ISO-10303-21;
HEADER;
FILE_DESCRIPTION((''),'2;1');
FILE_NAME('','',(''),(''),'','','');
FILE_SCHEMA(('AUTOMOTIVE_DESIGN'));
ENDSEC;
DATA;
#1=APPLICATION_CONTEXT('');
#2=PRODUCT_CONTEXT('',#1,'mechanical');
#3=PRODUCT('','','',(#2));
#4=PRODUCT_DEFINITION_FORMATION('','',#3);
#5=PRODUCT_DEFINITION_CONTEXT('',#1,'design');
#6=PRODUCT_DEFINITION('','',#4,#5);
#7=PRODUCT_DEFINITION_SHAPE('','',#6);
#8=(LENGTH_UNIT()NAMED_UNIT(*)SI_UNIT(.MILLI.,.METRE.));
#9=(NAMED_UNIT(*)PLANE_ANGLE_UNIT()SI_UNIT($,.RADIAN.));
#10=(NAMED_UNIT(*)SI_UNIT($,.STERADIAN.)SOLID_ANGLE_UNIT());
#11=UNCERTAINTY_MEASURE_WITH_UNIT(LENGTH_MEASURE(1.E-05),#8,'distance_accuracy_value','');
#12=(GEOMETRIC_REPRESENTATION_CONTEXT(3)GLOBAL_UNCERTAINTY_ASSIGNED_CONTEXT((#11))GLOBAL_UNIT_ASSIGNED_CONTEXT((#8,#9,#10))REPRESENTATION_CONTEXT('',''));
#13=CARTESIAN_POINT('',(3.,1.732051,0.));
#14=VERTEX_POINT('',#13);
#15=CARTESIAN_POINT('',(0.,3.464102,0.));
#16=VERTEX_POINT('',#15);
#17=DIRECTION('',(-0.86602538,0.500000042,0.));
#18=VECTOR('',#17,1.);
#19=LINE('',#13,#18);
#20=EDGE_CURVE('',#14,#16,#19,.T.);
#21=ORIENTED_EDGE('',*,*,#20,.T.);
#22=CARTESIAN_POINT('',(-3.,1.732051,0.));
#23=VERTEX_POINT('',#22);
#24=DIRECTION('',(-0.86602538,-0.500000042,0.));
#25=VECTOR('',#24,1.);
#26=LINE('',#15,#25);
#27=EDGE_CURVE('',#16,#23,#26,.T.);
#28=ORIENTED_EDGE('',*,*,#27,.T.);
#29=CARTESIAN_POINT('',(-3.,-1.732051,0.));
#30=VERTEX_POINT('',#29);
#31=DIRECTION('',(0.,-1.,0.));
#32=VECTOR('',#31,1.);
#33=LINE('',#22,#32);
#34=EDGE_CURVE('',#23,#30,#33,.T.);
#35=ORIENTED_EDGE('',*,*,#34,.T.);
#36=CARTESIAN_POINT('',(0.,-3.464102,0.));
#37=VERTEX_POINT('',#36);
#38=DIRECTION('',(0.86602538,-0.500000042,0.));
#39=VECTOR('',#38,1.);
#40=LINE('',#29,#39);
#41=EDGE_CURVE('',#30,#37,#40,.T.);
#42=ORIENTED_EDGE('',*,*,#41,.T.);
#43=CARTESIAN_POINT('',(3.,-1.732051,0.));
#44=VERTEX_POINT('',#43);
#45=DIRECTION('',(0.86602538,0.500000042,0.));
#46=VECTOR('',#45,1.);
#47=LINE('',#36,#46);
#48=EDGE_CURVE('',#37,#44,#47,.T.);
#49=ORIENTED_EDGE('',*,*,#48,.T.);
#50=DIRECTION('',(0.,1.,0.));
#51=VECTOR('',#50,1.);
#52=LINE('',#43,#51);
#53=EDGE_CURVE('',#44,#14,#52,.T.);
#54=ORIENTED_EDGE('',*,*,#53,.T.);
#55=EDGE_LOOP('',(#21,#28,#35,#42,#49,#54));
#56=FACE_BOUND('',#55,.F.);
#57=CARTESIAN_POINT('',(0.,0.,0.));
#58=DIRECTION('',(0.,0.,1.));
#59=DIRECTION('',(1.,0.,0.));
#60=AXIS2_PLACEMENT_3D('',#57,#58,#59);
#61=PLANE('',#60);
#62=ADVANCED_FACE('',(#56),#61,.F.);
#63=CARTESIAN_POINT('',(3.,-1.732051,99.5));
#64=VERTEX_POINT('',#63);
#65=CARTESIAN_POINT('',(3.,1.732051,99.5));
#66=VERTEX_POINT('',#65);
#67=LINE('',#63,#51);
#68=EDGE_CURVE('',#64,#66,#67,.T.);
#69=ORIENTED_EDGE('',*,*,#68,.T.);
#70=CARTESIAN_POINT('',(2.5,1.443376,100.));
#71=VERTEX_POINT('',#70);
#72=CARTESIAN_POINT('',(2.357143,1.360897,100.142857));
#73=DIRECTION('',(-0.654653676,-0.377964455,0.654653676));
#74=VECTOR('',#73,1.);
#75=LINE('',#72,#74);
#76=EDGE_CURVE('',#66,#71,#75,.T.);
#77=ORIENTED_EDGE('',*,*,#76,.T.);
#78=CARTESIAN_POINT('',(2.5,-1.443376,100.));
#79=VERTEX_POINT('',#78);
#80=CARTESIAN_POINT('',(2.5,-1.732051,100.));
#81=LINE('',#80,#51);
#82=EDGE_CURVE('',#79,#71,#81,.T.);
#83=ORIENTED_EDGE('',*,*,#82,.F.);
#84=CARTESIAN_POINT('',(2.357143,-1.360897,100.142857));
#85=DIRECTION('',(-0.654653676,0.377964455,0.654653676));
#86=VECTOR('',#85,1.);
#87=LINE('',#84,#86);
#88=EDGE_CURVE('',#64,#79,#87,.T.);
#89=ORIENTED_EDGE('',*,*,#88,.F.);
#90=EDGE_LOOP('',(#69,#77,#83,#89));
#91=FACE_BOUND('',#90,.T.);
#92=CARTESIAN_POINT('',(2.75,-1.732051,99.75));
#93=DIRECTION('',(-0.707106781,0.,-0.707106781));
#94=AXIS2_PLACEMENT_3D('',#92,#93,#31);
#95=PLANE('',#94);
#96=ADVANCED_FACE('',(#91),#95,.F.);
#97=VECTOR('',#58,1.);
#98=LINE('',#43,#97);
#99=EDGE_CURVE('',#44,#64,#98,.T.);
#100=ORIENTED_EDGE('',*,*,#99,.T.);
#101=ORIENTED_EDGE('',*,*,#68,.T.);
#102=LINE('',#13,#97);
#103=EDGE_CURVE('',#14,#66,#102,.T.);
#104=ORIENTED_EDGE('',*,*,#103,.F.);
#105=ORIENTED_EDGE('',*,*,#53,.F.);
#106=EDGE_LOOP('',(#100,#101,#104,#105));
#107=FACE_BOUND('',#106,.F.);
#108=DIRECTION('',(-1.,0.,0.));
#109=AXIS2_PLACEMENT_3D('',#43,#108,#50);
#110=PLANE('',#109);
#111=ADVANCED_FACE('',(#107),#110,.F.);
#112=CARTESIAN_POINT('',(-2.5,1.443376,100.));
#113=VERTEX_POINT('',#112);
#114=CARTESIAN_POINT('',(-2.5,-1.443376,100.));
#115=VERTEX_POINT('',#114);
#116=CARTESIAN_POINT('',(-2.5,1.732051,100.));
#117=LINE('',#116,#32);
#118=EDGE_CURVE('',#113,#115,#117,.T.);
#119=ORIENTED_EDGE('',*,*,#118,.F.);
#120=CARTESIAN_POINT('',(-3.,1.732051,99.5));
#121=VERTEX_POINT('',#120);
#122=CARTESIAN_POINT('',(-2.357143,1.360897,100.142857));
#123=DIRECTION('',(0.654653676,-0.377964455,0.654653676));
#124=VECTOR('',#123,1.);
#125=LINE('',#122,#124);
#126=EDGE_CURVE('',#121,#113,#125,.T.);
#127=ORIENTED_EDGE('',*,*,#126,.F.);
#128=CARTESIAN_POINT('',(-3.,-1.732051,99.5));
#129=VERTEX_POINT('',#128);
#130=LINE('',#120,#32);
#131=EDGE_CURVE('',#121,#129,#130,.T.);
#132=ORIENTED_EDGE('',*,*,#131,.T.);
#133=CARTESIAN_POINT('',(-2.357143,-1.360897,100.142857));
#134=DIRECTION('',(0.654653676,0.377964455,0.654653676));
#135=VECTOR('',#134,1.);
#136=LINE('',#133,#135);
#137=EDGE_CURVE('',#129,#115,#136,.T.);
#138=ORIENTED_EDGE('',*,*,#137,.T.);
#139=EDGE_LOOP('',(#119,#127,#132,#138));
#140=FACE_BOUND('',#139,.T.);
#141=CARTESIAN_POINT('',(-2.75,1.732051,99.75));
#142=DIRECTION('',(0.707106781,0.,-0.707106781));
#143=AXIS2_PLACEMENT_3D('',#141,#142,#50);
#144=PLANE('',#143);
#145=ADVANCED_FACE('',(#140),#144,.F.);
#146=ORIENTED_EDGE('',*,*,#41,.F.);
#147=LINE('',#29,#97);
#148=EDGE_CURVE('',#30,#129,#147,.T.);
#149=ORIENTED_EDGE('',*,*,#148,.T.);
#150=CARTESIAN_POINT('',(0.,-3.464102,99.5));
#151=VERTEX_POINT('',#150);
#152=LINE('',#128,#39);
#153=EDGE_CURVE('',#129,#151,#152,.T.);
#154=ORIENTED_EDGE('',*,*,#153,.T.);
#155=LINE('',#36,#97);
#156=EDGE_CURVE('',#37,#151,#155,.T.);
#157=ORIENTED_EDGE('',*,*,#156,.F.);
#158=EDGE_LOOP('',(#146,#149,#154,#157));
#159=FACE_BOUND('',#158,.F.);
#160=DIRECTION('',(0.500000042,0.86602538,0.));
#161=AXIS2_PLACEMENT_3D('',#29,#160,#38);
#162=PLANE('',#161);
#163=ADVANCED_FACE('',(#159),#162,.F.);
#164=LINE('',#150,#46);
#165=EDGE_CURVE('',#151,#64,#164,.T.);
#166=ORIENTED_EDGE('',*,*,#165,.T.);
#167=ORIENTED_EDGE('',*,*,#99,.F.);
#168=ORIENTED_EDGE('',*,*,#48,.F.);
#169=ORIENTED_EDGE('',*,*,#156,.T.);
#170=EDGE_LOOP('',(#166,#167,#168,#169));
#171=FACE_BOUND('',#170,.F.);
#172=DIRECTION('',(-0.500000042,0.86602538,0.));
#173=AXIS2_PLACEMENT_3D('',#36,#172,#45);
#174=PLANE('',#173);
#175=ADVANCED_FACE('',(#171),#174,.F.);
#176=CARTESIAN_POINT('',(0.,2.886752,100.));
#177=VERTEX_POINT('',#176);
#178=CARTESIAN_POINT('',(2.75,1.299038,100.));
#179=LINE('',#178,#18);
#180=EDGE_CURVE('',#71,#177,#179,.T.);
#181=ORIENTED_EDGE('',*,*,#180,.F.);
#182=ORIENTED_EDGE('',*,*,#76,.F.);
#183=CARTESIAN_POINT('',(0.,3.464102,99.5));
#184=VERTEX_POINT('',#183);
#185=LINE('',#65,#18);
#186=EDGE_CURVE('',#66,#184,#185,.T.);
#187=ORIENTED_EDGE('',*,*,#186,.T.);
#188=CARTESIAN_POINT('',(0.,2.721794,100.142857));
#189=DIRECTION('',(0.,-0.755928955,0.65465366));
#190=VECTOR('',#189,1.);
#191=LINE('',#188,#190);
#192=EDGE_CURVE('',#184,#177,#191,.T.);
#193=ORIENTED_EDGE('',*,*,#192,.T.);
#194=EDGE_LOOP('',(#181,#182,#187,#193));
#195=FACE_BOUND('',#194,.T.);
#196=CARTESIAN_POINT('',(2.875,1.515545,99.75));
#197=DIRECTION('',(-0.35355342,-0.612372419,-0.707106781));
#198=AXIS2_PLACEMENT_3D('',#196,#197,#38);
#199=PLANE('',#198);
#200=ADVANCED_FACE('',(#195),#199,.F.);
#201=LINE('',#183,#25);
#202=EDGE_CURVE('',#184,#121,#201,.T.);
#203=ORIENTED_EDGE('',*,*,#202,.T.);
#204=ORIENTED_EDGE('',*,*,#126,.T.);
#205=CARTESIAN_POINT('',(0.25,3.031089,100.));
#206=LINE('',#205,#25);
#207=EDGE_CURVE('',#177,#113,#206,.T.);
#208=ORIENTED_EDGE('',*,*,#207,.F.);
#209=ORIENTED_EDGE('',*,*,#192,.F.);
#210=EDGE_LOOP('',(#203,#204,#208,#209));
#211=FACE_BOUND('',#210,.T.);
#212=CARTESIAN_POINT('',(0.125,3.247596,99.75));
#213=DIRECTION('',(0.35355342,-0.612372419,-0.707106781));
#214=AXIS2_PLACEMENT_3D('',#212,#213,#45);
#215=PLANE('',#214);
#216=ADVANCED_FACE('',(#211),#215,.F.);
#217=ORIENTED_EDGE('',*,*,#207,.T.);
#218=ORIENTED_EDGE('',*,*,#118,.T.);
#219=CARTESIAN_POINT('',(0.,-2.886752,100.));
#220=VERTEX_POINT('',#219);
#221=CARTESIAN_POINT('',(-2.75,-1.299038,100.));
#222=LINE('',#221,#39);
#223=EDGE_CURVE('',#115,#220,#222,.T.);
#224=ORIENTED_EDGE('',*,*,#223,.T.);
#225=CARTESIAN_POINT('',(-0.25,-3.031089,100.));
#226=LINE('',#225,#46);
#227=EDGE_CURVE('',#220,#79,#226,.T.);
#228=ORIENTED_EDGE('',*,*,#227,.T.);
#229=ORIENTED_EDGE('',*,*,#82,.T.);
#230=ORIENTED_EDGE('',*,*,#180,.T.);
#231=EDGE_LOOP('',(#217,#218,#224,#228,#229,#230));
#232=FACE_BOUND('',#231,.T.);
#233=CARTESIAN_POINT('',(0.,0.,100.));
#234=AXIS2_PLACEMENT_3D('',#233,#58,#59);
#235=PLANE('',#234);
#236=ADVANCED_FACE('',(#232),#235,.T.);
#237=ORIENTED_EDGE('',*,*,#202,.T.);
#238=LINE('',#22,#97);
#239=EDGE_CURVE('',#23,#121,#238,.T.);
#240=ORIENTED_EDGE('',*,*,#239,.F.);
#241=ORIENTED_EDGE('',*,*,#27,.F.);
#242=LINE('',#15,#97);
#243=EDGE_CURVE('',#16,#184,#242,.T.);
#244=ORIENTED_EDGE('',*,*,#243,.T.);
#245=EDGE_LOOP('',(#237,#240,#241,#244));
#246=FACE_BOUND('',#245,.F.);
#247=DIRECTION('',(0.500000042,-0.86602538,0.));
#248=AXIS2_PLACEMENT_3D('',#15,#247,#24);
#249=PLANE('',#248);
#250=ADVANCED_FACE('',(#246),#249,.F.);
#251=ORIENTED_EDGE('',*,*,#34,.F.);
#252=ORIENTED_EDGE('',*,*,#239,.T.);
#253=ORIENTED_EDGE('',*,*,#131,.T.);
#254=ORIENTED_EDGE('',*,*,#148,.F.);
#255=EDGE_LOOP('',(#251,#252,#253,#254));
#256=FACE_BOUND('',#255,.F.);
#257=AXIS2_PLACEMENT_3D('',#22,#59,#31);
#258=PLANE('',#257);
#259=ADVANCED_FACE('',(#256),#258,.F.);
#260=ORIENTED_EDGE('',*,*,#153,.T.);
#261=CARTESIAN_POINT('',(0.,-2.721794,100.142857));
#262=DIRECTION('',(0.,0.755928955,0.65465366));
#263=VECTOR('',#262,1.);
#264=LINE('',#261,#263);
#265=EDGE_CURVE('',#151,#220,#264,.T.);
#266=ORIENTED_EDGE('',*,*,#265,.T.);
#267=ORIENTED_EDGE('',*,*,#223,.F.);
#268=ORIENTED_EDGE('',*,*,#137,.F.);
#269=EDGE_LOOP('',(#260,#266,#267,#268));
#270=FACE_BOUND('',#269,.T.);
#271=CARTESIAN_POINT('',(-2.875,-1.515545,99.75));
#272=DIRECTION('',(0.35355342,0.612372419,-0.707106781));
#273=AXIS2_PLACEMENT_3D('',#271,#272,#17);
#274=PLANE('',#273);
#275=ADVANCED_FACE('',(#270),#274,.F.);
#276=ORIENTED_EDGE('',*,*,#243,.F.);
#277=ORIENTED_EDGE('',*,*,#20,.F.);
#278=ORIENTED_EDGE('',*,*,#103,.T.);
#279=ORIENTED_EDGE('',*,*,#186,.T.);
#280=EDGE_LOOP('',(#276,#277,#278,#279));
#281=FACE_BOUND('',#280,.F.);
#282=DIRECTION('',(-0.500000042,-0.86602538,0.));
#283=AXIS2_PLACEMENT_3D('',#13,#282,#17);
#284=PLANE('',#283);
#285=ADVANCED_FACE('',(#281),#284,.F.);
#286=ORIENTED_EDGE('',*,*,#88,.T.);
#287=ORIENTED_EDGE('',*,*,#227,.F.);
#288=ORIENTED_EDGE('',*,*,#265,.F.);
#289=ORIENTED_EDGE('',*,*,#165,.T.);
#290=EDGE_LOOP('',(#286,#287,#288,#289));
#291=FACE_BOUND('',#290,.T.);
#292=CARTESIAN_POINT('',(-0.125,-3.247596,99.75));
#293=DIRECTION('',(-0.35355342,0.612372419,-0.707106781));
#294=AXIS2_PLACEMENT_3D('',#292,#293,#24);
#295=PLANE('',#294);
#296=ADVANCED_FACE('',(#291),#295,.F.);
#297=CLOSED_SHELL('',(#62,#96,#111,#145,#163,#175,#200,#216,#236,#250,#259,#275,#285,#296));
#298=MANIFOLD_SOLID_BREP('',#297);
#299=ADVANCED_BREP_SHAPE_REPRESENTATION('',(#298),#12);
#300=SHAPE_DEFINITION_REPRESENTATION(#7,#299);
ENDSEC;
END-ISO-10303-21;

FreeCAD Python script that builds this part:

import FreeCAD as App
import Part
import Sketcher

V = App.Vector
Q = App.Units.Quantity


def edges_at(feature, points):
    """Names of the edges that pass closest to the given points."""
    edges = feature.Shape.Edges
    near = lambda p: min(range(len(edges)), key=lambda i: edges[i].distToShape(Part.Vertex(*p))[0])
    return sorted({f"Edge{near(p) + 1}" for p in points})


def add_polygon(sketch, points):
    """Adds a closed chain of lines whose ends are joined by coincident constraints."""
    first, n = sketch.GeometryCount, len(points)
    for a, b in zip(points, points[1:] + points[:1]):
        sketch.addGeometry(Part.LineSegment(App.Vector(*a, 0), App.Vector(*b, 0)), False)
    for i in range(n):
        sketch.addConstraint(Sketcher.Constraint("Coincident", first + i, 2, first + (i + 1) % n, 1))

doc = App.newDocument("Part")
body = doc.addObject("PartDesign::Body", "Body")

sketch1 = body.newObject("Sketcher::SketchObject", "Sketch")
sketch1.AttachmentSupport = (doc.getObject("XY_Plane"), [""])
sketch1.MapMode = "FlatFace"
add_polygon(sketch1, [(3, -1.732051), (3, 1.732051), (0, 3.464102), (-3, 1.732051), (-3, -1.732051), (0, -3.464102)])
sketch1.addConstraint(Sketcher.Constraint("Vertical", 0))
sketch1.addConstraint(Sketcher.Constraint("Vertical", 3))
sketch1.addConstraint(Sketcher.Constraint("Symmetric", 0, 2, 3, 2, -1, 1))
sketch1.addConstraint(Sketcher.Constraint("Symmetric", 1, 2, 4, 2, -1, 1))
sketch1.addConstraint(Sketcher.Constraint("PointOnObject", 1, 2, -2))
sketch1.addConstraint(Sketcher.Constraint("Parallel", 2, 5))
sketch1.addConstraint(Sketcher.Constraint("Horizontal", 0, 2, 2, 2))
sketch1.addConstraint(Sketcher.Constraint("Angle", 1, Q("149.999997 deg")))
sketch1.addConstraint(Sketcher.Constraint("DistanceX", -1, 1, 0, 2, Q("3 mm")))
sketch1.addConstraint(Sketcher.Constraint("DistanceY", 0, 1, 0, 2, Q("3.464102 mm")))
pad1 = body.newObject("PartDesign::Pad", "Pad")
pad1.Profile = sketch1
pad1.Length = 100
doc.recompute()

chamfer = body.newObject("PartDesign::Chamfer", "Chamfer")
chamfer.Base = (pad1, edges_at(pad1, [
    (3, 0, 100),
    (1.5, 2.598, 100),
    (-1.5, 2.598, 100),
    (-3, 0, 100),
    (-1.5, -2.598, 100),
    (1.5, -2.598, 100),
]))
chamfer.Size = 0.5

doc.recompute()
